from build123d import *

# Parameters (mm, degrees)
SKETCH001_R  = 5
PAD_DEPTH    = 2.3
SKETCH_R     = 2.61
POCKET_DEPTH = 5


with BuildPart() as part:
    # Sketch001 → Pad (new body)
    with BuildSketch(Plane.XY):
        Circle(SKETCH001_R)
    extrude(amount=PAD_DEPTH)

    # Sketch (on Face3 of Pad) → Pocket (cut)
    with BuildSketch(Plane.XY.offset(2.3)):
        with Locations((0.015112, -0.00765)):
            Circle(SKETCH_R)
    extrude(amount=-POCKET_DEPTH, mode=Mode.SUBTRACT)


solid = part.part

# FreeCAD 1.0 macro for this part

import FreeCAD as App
import Part
import Sketcher

doc = App.newDocument("Part")
body = doc.addObject("PartDesign::Body", "Body")

# Sketch on XY plane
sketch1 = body.newObject("Sketcher::SketchObject", "Sketch")
sketch1.AttachmentSupport = (doc.getObject("XY_Plane"), [""])
sketch1.MapMode = "FlatFace"
sketch1.addGeometry(Part.Circle(App.Vector(0, 0, 0), App.Vector(0, 0, 1), 5), False)
sketch1.addConstraint(Sketcher.Constraint("Coincident", 0, 3, -1, 1))
sketch1.addConstraint(Sketcher.Constraint("Diameter", 0, 10.0))
pad1 = body.newObject("PartDesign::Pad", "Pad")
pad1.Profile = sketch1
pad1.Length = 2.3

# Sketch on XY plane
sketch2 = body.newObject("Sketcher::SketchObject", "Sketch001")
sketch2.AttachmentSupport = (doc.getObject("XY_Plane"), [""])
sketch2.MapMode = "FlatFace"
sketch2.AttachmentOffset = App.Placement(App.Vector(0, 0, 2.3), App.Rotation())
sketch2.addGeometry(Part.Circle(App.Vector(0.015112, -0.00765, 0), App.Vector(0, 0, 1), 2.61), False)
sketch2.addConstraint(Sketcher.Constraint("Diameter", 0, 5.22))
sketch2.addConstraint(Sketcher.Constraint("DistanceY", 0, 3, -1, 1, 0.00765))
sketch2.addConstraint(Sketcher.Constraint("DistanceX", -1, 1, 0, 3, 0.015112))
pocket1 = body.newObject("PartDesign::Pocket", "Pocket")
pocket1.Profile = sketch2
pocket1.Length = 5

doc.recompute()
